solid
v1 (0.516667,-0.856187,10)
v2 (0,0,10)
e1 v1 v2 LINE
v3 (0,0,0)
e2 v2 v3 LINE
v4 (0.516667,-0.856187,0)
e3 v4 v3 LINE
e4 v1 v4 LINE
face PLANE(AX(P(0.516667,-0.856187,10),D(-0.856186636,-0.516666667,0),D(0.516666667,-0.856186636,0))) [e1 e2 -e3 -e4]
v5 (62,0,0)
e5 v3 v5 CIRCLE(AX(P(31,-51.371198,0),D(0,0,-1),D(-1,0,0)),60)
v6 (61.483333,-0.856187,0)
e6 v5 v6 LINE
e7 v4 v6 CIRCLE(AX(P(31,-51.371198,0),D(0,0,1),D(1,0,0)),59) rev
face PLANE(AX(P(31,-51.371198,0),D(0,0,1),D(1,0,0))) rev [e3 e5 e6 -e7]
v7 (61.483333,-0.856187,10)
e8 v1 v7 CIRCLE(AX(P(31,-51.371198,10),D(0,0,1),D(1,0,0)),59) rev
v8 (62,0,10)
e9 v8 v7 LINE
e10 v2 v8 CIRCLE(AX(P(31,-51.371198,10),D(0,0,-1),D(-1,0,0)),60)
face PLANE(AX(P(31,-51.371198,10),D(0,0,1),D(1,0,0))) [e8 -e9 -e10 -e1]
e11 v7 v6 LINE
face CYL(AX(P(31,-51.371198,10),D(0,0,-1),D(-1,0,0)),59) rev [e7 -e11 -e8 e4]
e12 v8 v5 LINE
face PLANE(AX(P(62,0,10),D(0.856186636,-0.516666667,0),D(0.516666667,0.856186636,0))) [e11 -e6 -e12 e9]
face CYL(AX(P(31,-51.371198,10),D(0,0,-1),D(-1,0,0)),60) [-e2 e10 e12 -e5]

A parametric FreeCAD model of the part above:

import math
import FreeCAD as App
import Part
import Sketcher

doc = App.newDocument("Part")
body = doc.addObject("PartDesign::Body", "Body")

# Sketch on XY plane
sketch1 = body.newObject("Sketcher::SketchObject", "Sketch")
sketch1.AttachmentSupport = (doc.getObject("XY_Plane"), [""])
sketch1.MapMode = "FlatFace"
sketch1.addGeometry(Part.ArcOfCircle(Part.Circle(App.Vector(31, -51.4, 0), App.Vector(0, 0, 1), 60), math.radians(59), math.radians(121)), False)
sketch1.addGeometry(Part.LineSegment(App.Vector(0, 0, 0), App.Vector(0.5, -0.9, 0)), False)
sketch1.addGeometry(Part.ArcOfCircle(Part.Circle(App.Vector(31, -51.4, 0), App.Vector(0, 0, 1), 59), math.radians(59), math.radians(121)), False)
sketch1.addGeometry(Part.LineSegment(App.Vector(61.5, -0.9, 0), App.Vector(62, 0, 0)), False)
sketch1.addConstraint(Sketcher.Constraint("Coincident", 0, 2, 1, 1))
sketch1.addConstraint(Sketcher.Constraint("Coincident", 1, 2, 2, 2))
sketch1.addConstraint(Sketcher.Constraint("Coincident", 2, 1, 3, 1))
sketch1.addConstraint(Sketcher.Constraint("Coincident", 3, 2, 0, 1))
sketch1.addConstraint(Sketcher.Constraint("Coincident", 0, 2, -1, 1))
sketch1.addConstraint(Sketcher.Constraint("Coincident", 2, 3, 0, 3))
sketch1.addConstraint(Sketcher.Constraint("PointOnObject", 3, 2, -1))
sketch1.addConstraint(Sketcher.Constraint("Horizontal", 1, 2, 2, 1))
sketch1.addConstraint(Sketcher.Constraint("Radius", 0, 60.0))
sketch1.addConstraint(Sketcher.Constraint("Radius", 2, 59.0))
sketch1.addConstraint(Sketcher.Constraint("DistanceX", -1, 1, 0, 3, 31.0))
sketch1.addConstraint(Sketcher.Constraint("DistanceY", 2, 3, 1, 2, 50.515012))
pad1 = body.newObject("PartDesign::Pad", "Pad")
pad1.Profile = sketch1
pad1.Length = 10

doc.recompute()
